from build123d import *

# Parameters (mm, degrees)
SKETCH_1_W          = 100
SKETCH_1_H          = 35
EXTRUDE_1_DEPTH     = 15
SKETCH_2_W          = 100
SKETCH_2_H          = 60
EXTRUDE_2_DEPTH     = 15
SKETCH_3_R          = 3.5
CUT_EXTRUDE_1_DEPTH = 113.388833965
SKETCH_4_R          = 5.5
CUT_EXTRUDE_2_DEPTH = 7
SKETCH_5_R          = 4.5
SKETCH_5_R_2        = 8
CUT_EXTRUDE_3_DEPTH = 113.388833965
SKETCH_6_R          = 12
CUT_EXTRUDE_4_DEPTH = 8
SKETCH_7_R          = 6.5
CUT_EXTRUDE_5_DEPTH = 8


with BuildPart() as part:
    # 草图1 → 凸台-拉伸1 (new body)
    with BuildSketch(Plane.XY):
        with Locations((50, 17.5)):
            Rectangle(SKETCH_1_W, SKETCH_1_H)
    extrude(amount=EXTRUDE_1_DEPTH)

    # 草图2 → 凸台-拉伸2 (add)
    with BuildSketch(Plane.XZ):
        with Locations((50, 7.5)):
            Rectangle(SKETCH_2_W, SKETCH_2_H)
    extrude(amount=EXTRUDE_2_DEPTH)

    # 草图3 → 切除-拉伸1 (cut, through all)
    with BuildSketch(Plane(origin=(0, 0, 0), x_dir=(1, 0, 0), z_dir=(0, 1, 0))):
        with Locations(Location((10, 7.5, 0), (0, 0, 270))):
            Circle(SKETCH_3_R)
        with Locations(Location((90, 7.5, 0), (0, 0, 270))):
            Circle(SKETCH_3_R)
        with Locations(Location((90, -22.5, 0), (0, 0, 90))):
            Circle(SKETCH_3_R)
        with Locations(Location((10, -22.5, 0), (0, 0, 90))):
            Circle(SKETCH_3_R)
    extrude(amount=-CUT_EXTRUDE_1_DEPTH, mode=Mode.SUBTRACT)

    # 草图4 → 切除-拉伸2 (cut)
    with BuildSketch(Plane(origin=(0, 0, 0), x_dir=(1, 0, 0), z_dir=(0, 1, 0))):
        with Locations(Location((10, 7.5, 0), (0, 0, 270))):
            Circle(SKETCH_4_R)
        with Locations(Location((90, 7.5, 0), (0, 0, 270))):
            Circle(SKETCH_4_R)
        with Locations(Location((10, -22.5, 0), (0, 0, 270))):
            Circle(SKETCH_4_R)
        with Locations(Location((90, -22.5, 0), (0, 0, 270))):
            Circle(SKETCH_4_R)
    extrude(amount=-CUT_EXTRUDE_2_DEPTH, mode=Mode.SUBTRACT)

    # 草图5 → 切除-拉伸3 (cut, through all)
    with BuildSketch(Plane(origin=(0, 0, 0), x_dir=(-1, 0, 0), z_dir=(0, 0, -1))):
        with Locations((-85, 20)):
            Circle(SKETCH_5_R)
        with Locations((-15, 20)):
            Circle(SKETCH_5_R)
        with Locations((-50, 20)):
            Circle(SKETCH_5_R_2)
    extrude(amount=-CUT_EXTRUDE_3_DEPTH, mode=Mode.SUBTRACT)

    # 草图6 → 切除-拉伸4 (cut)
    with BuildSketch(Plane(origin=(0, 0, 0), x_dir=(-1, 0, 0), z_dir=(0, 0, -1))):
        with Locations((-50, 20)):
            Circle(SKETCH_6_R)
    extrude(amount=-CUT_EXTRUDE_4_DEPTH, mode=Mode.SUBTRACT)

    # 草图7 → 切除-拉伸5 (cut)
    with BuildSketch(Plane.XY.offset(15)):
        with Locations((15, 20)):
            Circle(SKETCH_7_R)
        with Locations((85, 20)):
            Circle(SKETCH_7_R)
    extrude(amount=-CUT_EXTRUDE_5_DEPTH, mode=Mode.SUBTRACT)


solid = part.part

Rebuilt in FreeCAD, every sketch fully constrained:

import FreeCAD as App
import Part
import Sketcher

V = App.Vector
Q = App.Units.Quantity

doc = App.newDocument("Part")
body = doc.addObject("PartDesign::Body", "Body")

# Sketch on XY plane
sketch1 = body.newObject("Sketcher::SketchObject", "Sketch")
sketch1.AttachmentSupport = (doc.getObject("XY_Plane"), [""])
sketch1.MapMode = "FlatFace"
sketch1.addGeometry([
    Part.LineSegment(V(0, 35, 0), V(0, 0, 0)),
    Part.LineSegment(V(0, 0, 0), V(100, 0, 0)),
    Part.LineSegment(V(100, 0, 0), V(100, 35, 0)),
    Part.LineSegment(V(100, 35, 0), V(0, 35, 0)),
], False)
sketch1.addConstraint([
    Sketcher.Constraint("Coincident", 0, 2, 1, 1),
    Sketcher.Constraint("Coincident", 1, 2, 2, 1),
    Sketcher.Constraint("Coincident", 2, 2, 3, 1),
    Sketcher.Constraint("Coincident", 3, 2, 0, 1),
    Sketcher.Constraint("Vertical", 0),
    Sketcher.Constraint("Horizontal", 1),
    Sketcher.Constraint("Vertical", 2),
    Sketcher.Constraint("Horizontal", 3),
    Sketcher.Constraint("Coincident", 0, 2, -1, 1),
    Sketcher.Constraint("DistanceX", 1, 1, 1, 2, Q("100 mm")),
    Sketcher.Constraint("DistanceY", 0, 2, 0, 1, Q("35 mm")),
])
pad1 = body.newObject("PartDesign::Pad", "Pad")
pad1.Profile = sketch1
pad1.Length = 15

# Sketch on XZ plane
sketch2 = body.newObject("Sketcher::SketchObject", "Sketch001")
sketch2.AttachmentSupport = (doc.getObject("XZ_Plane"), [""])
sketch2.MapMode = "FlatFace"
sketch2.addGeometry([
    Part.LineSegment(V(0, 38, 0), V(0, -22, 0)),
    Part.LineSegment(V(0, -22, 0), V(100, -22, 0)),
    Part.LineSegment(V(100, -22, 0), V(100, 38, 0)),
    Part.LineSegment(V(100, 38, 0), V(0, 38, 0)),
], False)
sketch2.addConstraint([
    Sketcher.Constraint("Coincident", 0, 2, 1, 1),
    Sketcher.Constraint("Coincident", 1, 2, 2, 1),
    Sketcher.Constraint("Coincident", 2, 2, 3, 1),
    Sketcher.Constraint("Coincident", 3, 2, 0, 1),
    Sketcher.Constraint("Vertical", 0),
    Sketcher.Constraint("Horizontal", 1),
    Sketcher.Constraint("Vertical", 2),
    Sketcher.Constraint("Horizontal", 3),
    Sketcher.Constraint("PointOnObject", 0, 2, -2),
    Sketcher.Constraint("DistanceX", 1, 1, 1, 2, Q("100 mm")),
    Sketcher.Constraint("DistanceY", 0, 2, 0, 1, Q("60 mm")),
    Sketcher.Constraint("DistanceY", 0, 2, -1, 1, Q("22.5 mm")),
])
pad2 = body.newObject("PartDesign::Pad", "Pad001")
pad2.Profile = sketch2
pad2.Length = 15

# Sketch on XZ plane
sketch3 = body.newObject("Sketcher::SketchObject", "Sketch002")
sketch3.AttachmentSupport = (doc.getObject("XZ_Plane"), [""])
sketch3.MapMode = "FlatFace"
sketch3.addGeometry([
    Part.Circle(V(10, -7.5, 0), V(0, 0, 1), 3.5),
    Part.Circle(V(90, -7.5, 0), V(0, 0, 1), 3.5),
    Part.Circle(V(90, 22.5, 0), V(0, 0, 1), 3.5),
    Part.Circle(V(10, 22.5, 0), V(0, 0, 1), 3.5),
], False)
sketch3.addConstraint([
    Sketcher.Constraint("Equal", 0, 1),
    Sketcher.Constraint("Equal", 1, 2),
    Sketcher.Constraint("Equal", 2, 3),
    Sketcher.Constraint("Horizontal", 0, 3, 1, 3),
    Sketcher.Constraint("Horizontal", 2, 3, 3, 3),
    Sketcher.Constraint("Vertical", 1, 3, 2, 3),
    Sketcher.Constraint("Vertical", 0, 3, 3, 3),
    Sketcher.Constraint("Diameter", 0, Q("7 mm")),
    Sketcher.Constraint("DistanceX", -1, 1, 0, 3, Q("10 mm")),
    Sketcher.Constraint("DistanceX", -1, 1, 1, 3, Q("90 mm")),
    Sketcher.Constraint("DistanceY", 1, 3, 2, 3, Q("30 mm")),
    Sketcher.Constraint("DistanceY", 0, 3, -1, 1, Q("7.5 mm")),
])
pocket1 = body.newObject("PartDesign::Pocket", "Pocket")
pocket1.Profile = sketch3
pocket1.Type = "ThroughAll"
pocket1.Reversed = True

# Sketch on XZ plane
sketch4 = body.newObject("Sketcher::SketchObject", "Sketch003")
sketch4.AttachmentSupport = (doc.getObject("XZ_Plane"), [""])
sketch4.MapMode = "FlatFace"
sketch4.addGeometry([
    Part.Circle(V(10, -8, 0), V(0, 0, 1), 6),
    Part.Circle(V(90, -8, 0), V(0, 0, 1), 6),
    Part.Circle(V(10, 22, 0), V(0, 0, 1), 6),
    Part.Circle(V(90, 22, 0), V(0, 0, 1), 6),
], False)
sketch4.addConstraint([
    Sketcher.Constraint("Equal", 0, 1),
    Sketcher.Constraint("Equal", 1, 2),
    Sketcher.Constraint("Equal", 2, 3),
    Sketcher.Constraint("Horizontal", 0, 3, 1, 3),
    Sketcher.Constraint("Horizontal", 2, 3, 3, 3),
    Sketcher.Constraint("Vertical", 0, 3, 2, 3),
    Sketcher.Constraint("Vertical", 1, 3, 3, 3),
    Sketcher.Constraint("Diameter", 0, Q("11 mm")),
    Sketcher.Constraint("DistanceX", -1, 1, 0, 3, Q("10 mm")),
    Sketcher.Constraint("DistanceX", -1, 1, 1, 3, Q("90 mm")),
    Sketcher.Constraint("DistanceY", 0, 3, 2, 3, Q("30 mm")),
    Sketcher.Constraint("DistanceY", 0, 3, -1, 1, Q("7.5 mm")),
])
pocket2 = body.newObject("PartDesign::Pocket", "Pocket001")
pocket2.Profile = sketch4
pocket2.Length = 7
pocket2.Reversed = True

# Sketch on XY plane
sketch5 = body.newObject("Sketcher::SketchObject", "Sketch004")
sketch5.AttachmentSupport = (doc.getObject("XY_Plane"), [""])
sketch5.MapMode = "FlatFace"
sketch5.addGeometry([
    Part.Circle(V(85, 20, 0), V(0, 0, 1), 4.5),
    Part.Circle(V(15, 20, 0), V(0, 0, 1), 4.5),
    Part.Circle(V(50, 20, 0), V(0, 0, 1), 8),
], False)
sketch5.addConstraint([
    Sketcher.Constraint("Equal", 0, 1),
    Sketcher.Constraint("Horizontal", 0, 3, 1, 3),
    Sketcher.Constraint("Horizontal", 1, 3, 2, 3),
    Sketcher.Constraint("Diameter", 0, Q("9 mm")),
    Sketcher.Constraint("Diameter", 2, Q("16 mm")),
    Sketcher.Constraint("DistanceX", -1, 1, 0, 3, Q("85 mm")),
    Sketcher.Constraint("DistanceY", -1, 1, 0, 3, Q("20 mm")),
    Sketcher.Constraint("DistanceX", -1, 1, 1, 3, Q("15 mm")),
    Sketcher.Constraint("DistanceX", -1, 1, 2, 3, Q("50 mm")),
])
pocket3 = body.newObject("PartDesign::Pocket", "Pocket002")
pocket3.Profile = sketch5
pocket3.Type = "ThroughAll"
pocket3.Reversed = True

# Sketch on XY plane
sketch6 = body.newObject("Sketcher::SketchObject", "Sketch005")
sketch6.AttachmentSupport = (doc.getObject("XY_Plane"), [""])
sketch6.MapMode = "FlatFace"
sketch6.addGeometry(Part.Circle(V(50, 20, 0), V(0, 0, 1), 12), False)
sketch6.addConstraint([
    Sketcher.Constraint("Diameter", 0, Q("24 mm")),
    Sketcher.Constraint("DistanceX", -1, 1, 0, 3, Q("50 mm")),
    Sketcher.Constraint("DistanceY", -1, 1, 0, 3, Q("20 mm")),
])
pocket4 = body.newObject("PartDesign::Pocket", "Pocket003")
pocket4.Profile = sketch6
pocket4.Length = 8
pocket4.Reversed = True

# Sketch on XY plane
sketch7 = body.newObject("Sketcher::SketchObject", "Sketch006")
sketch7.AttachmentSupport = (doc.getObject("XY_Plane"), [""])
sketch7.MapMode = "FlatFace"
sketch7.AttachmentOffset = App.Placement(V(0, 0, 15), App.Rotation())
sketch7.addGeometry([
    Part.Circle(V(15, 20, 0), V(0, 0, 1), 6),
    Part.Circle(V(85, 20, 0), V(0, 0, 1), 6),
], False)
sketch7.addConstraint([
    Sketcher.Constraint("Equal", 0, 1),
    Sketcher.Constraint("Horizontal", 0, 3, 1, 3),
    Sketcher.Constraint("Diameter", 0, Q("13 mm")),
    Sketcher.Constraint("DistanceX", -1, 1, 0, 3, Q("15 mm")),
    Sketcher.Constraint("DistanceY", -1, 1, 0, 3, Q("20 mm")),
    Sketcher.Constraint("DistanceX", -1, 1, 1, 3, Q("85 mm")),
])
pocket5 = body.newObject("PartDesign::Pocket", "Pocket004")
pocket5.Profile = sketch7
pocket5.Length = 8

doc.recompute()
